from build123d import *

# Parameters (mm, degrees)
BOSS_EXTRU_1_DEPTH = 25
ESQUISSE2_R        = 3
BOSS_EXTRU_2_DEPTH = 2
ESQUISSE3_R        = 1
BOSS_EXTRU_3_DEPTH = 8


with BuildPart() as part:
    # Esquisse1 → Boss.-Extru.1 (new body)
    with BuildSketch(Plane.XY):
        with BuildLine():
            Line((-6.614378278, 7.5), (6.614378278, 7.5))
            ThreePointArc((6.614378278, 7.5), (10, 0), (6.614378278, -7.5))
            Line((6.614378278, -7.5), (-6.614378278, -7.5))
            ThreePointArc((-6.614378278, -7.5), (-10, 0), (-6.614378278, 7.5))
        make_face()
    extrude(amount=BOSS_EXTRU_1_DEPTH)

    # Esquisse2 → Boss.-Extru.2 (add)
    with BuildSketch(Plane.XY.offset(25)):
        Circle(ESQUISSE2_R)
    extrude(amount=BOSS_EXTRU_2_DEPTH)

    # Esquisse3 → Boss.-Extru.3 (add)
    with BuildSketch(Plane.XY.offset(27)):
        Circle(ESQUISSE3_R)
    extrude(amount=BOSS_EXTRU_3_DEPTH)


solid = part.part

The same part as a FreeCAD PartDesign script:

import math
import FreeCAD as App
import Part
import Sketcher
from FreeCAD import Vector

doc = App.newDocument("Part")
params = doc.addObject("Spreadsheet::Sheet", "Params")
for row, (alias, value) in enumerate([
    ("sketch1_radius", "10 mm"),
    ("pad1_length", "25 mm"),
    ("sketch2_diameter", "6 mm"),
    ("pad2_length", "2 mm"),
    ("sketch3_diameter", "2 mm"),
    ("pad3_length", "8 mm"),
], start=1):
    params.set(f"A{row}", alias)
    params.set(f"B{row}", "=" + value)
    params.setAlias(f"B{row}", alias)

body = doc.addObject("PartDesign::Body", "Body")

sketch1 = body.newObject("Sketcher::SketchObject", "Sketch")
sketch1.AttachmentSupport = (doc.getObject("XY_Plane"), [""])
sketch1.MapMode = "FlatFace"
sketch1.addGeometry([
    Part.LineSegment(Vector(7, 8, 0), Vector(-7, 8, 0)),
    Part.ArcOfCircle(Part.Circle(Vector(0, 0, 0), Vector(0, 0, 1), 10), math.radians(131), math.radians(229)),
    Part.LineSegment(Vector(-7, -8, 0), Vector(7, -8, 0)),
    Part.ArcOfCircle(Part.Circle(Vector(0, 0, 0), Vector(0, 0, 1), 10), math.radians(-49), math.radians(49)),
], False)
sketch1.addConstraint([
    Sketcher.Constraint("Coincident", 0, 2, 1, 1),
    Sketcher.Constraint("Coincident", 1, 2, 2, 1),
    Sketcher.Constraint("Coincident", 2, 2, 3, 1),
    Sketcher.Constraint("Coincident", 3, 2, 0, 1),
    Sketcher.Constraint("Horizontal", 0),
    Sketcher.Constraint("Horizontal", 2),
    Sketcher.Constraint("Coincident", 1, 3, -1, 1),
    Sketcher.Constraint("Coincident", 3, 3, -1, 1),
    Sketcher.Constraint("Equal", 1, 3),
    Sketcher.Constraint("Vertical", 0, 2, 1, 2),
    Sketcher.Constraint("Radius", 1, 10.0),
    Sketcher.Constraint("DistanceY", 1, 2, 0, 2, 15.0),
])
sketch1.setExpression("Constraints[10]", "Params.sketch1_radius")
pad1 = body.newObject("PartDesign::Pad", "Pad")
pad1.Profile = sketch1
pad1.setExpression("Length", "Params.pad1_length")

sketch2 = body.newObject("Sketcher::SketchObject", "Sketch001")
sketch2.AttachmentSupport = (doc.getObject("XY_Plane"), [""])
sketch2.MapMode = "FlatFace"
sketch2.AttachmentOffset = App.Placement(Vector(0, 0, 25), App.Rotation())
sketch2.addGeometry(Part.Circle(Vector(0, 0, 0), Vector(0, 0, 1), 3), False)
sketch2.addConstraint([
    Sketcher.Constraint("Coincident", 0, 3, -1, 1),
    Sketcher.Constraint("Diameter", 0, 6.0),
])
sketch2.setExpression("Constraints[1]", "Params.sketch2_diameter")
pad2 = body.newObject("PartDesign::Pad", "Pad001")
pad2.Profile = sketch2
pad2.setExpression("Length", "Params.pad2_length")

sketch3 = body.newObject("Sketcher::SketchObject", "Sketch002")
sketch3.AttachmentSupport = (doc.getObject("XY_Plane"), [""])
sketch3.MapMode = "FlatFace"
sketch3.AttachmentOffset = App.Placement(Vector(0, 0, 27), App.Rotation())
sketch3.addGeometry(Part.Circle(Vector(0, 0, 0), Vector(0, 0, 1), 1), False)
sketch3.addConstraint([
    Sketcher.Constraint("Coincident", 0, 3, -1, 1),
    Sketcher.Constraint("Diameter", 0, 2.0),
])
sketch3.setExpression("Constraints[1]", "Params.sketch3_diameter")
pad3 = body.newObject("PartDesign::Pad", "Pad002")
pad3.Profile = sketch3
pad3.setExpression("Length", "Params.pad3_length")

doc.recompute()
